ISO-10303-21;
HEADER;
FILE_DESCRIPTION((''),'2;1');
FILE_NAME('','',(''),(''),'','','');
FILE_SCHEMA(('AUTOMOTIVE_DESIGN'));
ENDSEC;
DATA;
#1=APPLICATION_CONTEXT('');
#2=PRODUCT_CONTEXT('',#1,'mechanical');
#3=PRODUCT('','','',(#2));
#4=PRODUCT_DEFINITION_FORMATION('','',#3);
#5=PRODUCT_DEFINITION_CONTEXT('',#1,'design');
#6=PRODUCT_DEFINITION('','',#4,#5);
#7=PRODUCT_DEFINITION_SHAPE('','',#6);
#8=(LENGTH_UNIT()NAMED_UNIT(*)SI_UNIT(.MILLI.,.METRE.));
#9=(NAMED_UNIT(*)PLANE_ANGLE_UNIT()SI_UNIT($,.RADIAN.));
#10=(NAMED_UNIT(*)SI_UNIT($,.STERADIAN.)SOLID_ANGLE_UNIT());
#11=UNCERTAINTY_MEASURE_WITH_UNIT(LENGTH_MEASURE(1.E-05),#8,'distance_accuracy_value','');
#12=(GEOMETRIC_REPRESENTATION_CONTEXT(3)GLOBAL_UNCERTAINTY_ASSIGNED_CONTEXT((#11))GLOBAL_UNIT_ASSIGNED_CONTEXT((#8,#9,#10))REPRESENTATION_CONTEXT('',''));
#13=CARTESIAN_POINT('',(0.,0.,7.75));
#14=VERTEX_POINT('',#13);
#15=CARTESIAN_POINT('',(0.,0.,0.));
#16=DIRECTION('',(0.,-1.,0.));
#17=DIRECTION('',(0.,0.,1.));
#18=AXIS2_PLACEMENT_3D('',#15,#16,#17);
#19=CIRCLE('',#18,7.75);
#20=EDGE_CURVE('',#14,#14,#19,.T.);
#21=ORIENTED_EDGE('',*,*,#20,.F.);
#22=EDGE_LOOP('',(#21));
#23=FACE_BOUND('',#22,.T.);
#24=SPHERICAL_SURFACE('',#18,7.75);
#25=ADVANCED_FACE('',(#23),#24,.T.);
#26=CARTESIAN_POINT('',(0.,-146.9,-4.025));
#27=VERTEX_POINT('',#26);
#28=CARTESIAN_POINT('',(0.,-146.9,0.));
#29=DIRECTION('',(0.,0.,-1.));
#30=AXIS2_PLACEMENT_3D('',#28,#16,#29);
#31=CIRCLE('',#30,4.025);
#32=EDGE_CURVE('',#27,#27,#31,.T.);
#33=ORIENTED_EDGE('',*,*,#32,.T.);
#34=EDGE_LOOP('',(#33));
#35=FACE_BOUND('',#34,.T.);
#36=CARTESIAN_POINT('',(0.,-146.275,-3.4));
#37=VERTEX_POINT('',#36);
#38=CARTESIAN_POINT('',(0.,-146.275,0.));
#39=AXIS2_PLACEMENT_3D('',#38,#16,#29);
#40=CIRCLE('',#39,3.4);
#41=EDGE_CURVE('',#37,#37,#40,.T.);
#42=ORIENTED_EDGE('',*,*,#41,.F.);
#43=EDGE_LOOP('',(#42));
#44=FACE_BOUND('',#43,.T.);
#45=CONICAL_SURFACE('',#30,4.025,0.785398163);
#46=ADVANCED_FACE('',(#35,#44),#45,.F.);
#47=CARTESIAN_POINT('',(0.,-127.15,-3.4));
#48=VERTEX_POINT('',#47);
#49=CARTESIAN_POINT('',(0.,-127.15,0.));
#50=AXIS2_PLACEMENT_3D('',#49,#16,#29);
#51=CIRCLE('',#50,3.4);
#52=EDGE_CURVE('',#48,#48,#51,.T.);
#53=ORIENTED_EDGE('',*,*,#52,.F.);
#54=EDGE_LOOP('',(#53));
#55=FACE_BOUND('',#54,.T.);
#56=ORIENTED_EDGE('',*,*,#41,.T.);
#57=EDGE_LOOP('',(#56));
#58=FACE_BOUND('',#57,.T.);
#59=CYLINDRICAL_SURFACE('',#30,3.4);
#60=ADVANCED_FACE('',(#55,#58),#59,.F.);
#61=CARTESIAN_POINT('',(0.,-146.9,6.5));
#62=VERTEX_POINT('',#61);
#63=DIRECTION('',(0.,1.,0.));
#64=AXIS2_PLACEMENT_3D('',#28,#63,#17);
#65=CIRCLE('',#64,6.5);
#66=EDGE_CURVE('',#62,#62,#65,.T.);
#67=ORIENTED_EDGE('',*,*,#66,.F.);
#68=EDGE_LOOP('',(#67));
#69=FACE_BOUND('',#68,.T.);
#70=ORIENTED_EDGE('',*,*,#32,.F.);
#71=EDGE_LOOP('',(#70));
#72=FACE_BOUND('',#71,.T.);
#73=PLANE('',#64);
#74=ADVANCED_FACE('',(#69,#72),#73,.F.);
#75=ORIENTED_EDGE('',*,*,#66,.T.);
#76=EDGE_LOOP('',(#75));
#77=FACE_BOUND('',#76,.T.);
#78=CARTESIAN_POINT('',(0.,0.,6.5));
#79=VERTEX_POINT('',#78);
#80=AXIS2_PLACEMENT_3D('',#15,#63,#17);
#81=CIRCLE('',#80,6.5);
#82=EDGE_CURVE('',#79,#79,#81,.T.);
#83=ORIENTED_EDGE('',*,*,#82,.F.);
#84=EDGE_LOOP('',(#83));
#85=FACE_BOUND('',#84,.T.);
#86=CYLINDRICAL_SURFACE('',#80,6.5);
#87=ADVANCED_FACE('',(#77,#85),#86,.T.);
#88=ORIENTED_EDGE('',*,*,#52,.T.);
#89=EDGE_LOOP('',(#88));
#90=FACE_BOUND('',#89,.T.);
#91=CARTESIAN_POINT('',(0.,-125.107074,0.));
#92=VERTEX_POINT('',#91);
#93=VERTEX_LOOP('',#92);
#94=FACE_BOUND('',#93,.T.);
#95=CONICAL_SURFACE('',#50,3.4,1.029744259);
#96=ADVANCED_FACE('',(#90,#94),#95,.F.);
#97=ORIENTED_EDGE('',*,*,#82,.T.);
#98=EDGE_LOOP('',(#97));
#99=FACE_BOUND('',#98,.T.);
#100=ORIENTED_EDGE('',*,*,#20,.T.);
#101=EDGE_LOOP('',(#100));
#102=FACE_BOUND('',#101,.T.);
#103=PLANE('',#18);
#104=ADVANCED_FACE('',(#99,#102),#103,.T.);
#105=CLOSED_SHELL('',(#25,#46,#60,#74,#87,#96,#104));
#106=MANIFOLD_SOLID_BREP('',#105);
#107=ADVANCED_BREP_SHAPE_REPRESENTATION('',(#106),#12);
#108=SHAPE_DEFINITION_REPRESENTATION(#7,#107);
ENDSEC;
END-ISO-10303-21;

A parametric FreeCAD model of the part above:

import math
import FreeCAD as App
import Part
import Sketcher

V = App.Vector

doc = App.newDocument("Part")
body = doc.addObject("PartDesign::Body", "Body")

sketch1 = body.newObject("Sketcher::SketchObject", "Sketch")
sketch1.AttachmentSupport = (doc.getObject("XZ_Plane"), [""])
sketch1.MapMode = "FlatFace"
sketch1.addGeometry([
    Part.LineSegment(V(0, -8, 0), V(0, 8, 0)),
    Part.ArcOfCircle(Part.Circle(V(0, 0, 0), V(0, 0, 1), 8), math.radians(-90), math.radians(90)),
], False)
sketch1.addConstraint([
    Sketcher.Constraint("Coincident", 0, 1, 1, 1),
    Sketcher.Constraint("Coincident", 1, 2, 0, 2),
    Sketcher.Constraint("Vertical", 0),
    Sketcher.Constraint("Coincident", 1, 3, -1, 1),
    Sketcher.Constraint("PointOnObject", 0, 1, -2),
    Sketcher.Constraint("Radius", 1, 7.75),
])
revolution = body.newObject("PartDesign::Revolution", "Revolution")
revolution.Profile = sketch1
revolution.ReferenceAxis = (sketch1, ["V_Axis"])
revolution.Angle = 180

sketch2 = body.newObject("Sketcher::SketchObject", "Sketch001")
sketch2.AttachmentSupport = (doc.getObject("YZ_Plane"), [""])
sketch2.MapMode = "FlatFace"
sketch2.addGeometry([
    Part.LineSegment(V(0, 0, 0), V(-147, 0, 0)),
    Part.LineSegment(V(-147, 0, 0), V(-147, -6, 0)),
    Part.LineSegment(V(-147, -6, 0), V(0, -6, 0)),
    Part.LineSegment(V(0, -6, 0), V(0, 0, 0)),
], False)
sketch2.addConstraint([
    Sketcher.Constraint("Coincident", 0, 2, 1, 1),
    Sketcher.Constraint("Coincident", 1, 2, 2, 1),
    Sketcher.Constraint("Coincident", 2, 2, 3, 1),
    Sketcher.Constraint("Coincident", 3, 2, 0, 1),
    Sketcher.Constraint("Horizontal", 0),
    Sketcher.Constraint("Vertical", 1),
    Sketcher.Constraint("Horizontal", 2),
    Sketcher.Constraint("Vertical", 3),
    Sketcher.Constraint("Coincident", 3, 2, -1, 1),
    Sketcher.Constraint("DistanceX", 0, 2, 0, 1, 146.9),
    Sketcher.Constraint("DistanceY", 1, 2, 1, 1, 6.5),
])
revolution2 = body.newObject("PartDesign::Revolution", "Revolution001")
revolution2.Profile = sketch2
revolution2.ReferenceAxis = (sketch2, ["H_Axis"])
revolution2.Angle = 360

sketch3 = body.newObject("Sketcher::SketchObject", "Sketch002")
sketch3.AttachmentSupport = (doc.getObject("XZ_Plane"), [""])
sketch3.MapMode = "FlatFace"
sketch3.AttachmentOffset = App.Placement(V(0, 0, 146.9), App.Rotation())
sketch3.addGeometry(Part.Circle(V(0, 0, 0), V(0, 0, 1), 3.4), False)
sketch3.addConstraint([
    Sketcher.Constraint("Coincident", 0, 3, -1, 1),
    Sketcher.Constraint("Diameter", 0, 6.8),
])
doc.recompute()
hole = body.newObject("PartDesign::Hole", "Hole")
hole.Profile = sketch3
hole.ThreadType = "None"
hole.Diameter = 6.8
hole.DepthType = "Dimension"
hole.Depth = 19.75
hole.DrillPoint = "Angled"
hole.DrillPointAngle = 118
hole.HoleCutType = "Countersink"
hole.HoleCutDiameter = 8.05
hole.HoleCutCountersinkAngle = 90

doc.recompute()
